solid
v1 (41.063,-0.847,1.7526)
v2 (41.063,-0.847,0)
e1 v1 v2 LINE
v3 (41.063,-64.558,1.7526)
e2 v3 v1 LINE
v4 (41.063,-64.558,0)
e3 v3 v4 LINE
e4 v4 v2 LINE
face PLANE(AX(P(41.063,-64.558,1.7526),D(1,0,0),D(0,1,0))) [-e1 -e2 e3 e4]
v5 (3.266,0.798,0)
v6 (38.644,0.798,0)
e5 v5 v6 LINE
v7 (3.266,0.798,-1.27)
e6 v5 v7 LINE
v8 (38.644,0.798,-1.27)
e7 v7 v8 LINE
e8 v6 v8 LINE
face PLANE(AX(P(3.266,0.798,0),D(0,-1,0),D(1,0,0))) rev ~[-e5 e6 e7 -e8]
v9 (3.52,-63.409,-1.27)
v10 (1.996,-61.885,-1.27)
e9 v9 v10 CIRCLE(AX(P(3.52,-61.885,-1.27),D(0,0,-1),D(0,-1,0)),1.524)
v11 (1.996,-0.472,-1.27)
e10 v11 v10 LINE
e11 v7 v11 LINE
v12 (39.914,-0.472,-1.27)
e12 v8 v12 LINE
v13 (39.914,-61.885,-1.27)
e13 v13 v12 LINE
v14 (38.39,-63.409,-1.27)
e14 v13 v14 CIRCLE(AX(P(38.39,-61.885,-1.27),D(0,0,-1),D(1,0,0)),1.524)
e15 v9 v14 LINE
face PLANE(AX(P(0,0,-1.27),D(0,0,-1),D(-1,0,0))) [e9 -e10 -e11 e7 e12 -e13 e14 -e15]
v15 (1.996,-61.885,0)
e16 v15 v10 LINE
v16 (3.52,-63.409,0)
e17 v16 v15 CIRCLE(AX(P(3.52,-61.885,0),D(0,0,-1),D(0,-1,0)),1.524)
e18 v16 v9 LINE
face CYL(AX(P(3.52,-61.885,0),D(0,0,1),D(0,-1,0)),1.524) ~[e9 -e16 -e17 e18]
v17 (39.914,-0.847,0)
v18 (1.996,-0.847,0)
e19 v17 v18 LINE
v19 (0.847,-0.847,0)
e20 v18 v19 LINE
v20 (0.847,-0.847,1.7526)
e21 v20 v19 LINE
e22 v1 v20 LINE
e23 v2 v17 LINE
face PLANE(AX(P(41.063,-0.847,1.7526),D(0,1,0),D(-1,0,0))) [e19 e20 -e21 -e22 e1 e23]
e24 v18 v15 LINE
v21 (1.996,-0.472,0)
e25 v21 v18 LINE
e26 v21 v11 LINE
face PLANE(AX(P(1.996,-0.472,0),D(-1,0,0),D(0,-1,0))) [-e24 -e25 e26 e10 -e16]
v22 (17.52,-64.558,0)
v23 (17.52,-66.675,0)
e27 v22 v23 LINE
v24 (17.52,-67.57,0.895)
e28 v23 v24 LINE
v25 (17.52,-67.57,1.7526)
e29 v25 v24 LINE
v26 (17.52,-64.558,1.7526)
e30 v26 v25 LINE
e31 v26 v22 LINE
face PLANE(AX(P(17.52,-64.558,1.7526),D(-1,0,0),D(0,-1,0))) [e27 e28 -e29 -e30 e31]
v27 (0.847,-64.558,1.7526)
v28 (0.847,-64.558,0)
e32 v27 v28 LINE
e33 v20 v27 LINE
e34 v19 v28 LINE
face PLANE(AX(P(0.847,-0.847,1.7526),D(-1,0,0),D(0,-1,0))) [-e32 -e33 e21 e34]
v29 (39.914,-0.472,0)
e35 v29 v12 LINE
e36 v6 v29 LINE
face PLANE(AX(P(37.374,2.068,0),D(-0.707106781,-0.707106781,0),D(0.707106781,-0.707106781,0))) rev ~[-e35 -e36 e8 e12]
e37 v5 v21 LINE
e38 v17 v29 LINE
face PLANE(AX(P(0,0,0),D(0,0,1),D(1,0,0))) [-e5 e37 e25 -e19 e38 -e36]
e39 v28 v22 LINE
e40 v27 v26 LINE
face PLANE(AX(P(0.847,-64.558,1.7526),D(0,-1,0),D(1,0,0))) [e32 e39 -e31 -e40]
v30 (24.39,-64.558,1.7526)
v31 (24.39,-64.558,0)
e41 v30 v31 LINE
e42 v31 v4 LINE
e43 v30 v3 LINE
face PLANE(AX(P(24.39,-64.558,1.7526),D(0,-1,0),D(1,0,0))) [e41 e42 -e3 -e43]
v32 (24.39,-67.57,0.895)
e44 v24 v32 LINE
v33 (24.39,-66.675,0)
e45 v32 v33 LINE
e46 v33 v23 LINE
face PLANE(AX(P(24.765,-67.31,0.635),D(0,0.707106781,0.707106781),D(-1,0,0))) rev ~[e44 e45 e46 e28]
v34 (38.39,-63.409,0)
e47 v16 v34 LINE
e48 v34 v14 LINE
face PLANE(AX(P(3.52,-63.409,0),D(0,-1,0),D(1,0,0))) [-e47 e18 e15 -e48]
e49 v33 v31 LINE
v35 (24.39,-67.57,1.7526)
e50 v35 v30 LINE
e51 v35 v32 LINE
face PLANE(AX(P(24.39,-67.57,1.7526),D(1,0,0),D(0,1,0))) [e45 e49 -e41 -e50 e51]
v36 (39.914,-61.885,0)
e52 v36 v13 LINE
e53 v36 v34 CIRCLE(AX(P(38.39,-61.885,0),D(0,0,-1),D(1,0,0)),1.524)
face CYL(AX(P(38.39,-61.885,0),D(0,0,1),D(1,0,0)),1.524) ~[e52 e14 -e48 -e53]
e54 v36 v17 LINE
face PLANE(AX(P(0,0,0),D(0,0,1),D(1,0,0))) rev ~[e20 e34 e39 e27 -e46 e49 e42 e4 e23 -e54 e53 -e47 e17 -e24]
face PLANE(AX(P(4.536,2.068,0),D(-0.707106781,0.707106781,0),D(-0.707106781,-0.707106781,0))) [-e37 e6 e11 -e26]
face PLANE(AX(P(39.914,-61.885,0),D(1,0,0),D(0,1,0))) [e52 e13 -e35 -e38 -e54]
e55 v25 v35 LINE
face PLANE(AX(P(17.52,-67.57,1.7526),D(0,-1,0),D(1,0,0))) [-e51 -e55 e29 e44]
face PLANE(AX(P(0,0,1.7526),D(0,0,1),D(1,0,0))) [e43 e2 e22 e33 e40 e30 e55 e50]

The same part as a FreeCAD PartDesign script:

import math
import FreeCAD as App
import Part
import Sketcher
from FreeCAD import Vector
Q = App.Units.Quantity


def edges_at(feature, points):
    """Names of the edges that pass closest to the given points."""
    edges = feature.Shape.Edges
    near = lambda p: min(range(len(edges)), key=lambda i: edges[i].distToShape(Part.Vertex(*p))[0])
    return sorted({f"Edge{near(p) + 1}" for p in points})


def add_polygon(sketch, points):
    """Adds a closed chain of lines whose ends are joined by coincident constraints."""
    first, n = sketch.GeometryCount, len(points)
    for a, b in zip(points, points[1:] + points[:1]):
        sketch.addGeometry(Part.LineSegment(App.Vector(*a, 0), App.Vector(*b, 0)), False)
    for i in range(n):
        sketch.addConstraint(Sketcher.Constraint("Coincident", first + i, 2, first + (i + 1) % n, 1))

doc = App.newDocument("Part")
body = doc.addObject("PartDesign::Body", "Body")

sketch1 = body.newObject("Sketcher::SketchObject", "Sketch")
sketch1.AttachmentSupport = (doc.getObject("XY_Plane"), [""])
sketch1.MapMode = "FlatFace"
add_polygon(sketch1, [(41.4, -64.9), (41.4, -0.5), (0.5, -0.5), (0.5, -64.9), (17.1, -64.9), (17.1, -67.9), (24.8, -67.9), (24.8, -64.9)])
sketch1.addConstraint(Sketcher.Constraint("Vertical", 0))
sketch1.addConstraint(Sketcher.Constraint("Horizontal", 1))
sketch1.addConstraint(Sketcher.Constraint("Vertical", 2))
sketch1.addConstraint(Sketcher.Constraint("Horizontal", 3))
sketch1.addConstraint(Sketcher.Constraint("Vertical", 4))
sketch1.addConstraint(Sketcher.Constraint("Horizontal", 5))
sketch1.addConstraint(Sketcher.Constraint("Vertical", 6))
sketch1.addConstraint(Sketcher.Constraint("Horizontal", 7))
sketch1.addConstraint(Sketcher.Constraint("Horizontal", 3, 2, 6, 2))
sketch1.addConstraint(Sketcher.Constraint("Equal", 3, 7))
sketch1.addConstraint(Sketcher.Constraint("DistanceX", 5, 1, 5, 2, Q("0.3 in")))
sketch1.addConstraint(Sketcher.Constraint("DistanceX", -1, 1, 3, 2, Q("0.675 in")))
sketch1.addConstraint(Sketcher.Constraint("DistanceY", 4, 2, -1, 1, Q("2.675 in")))
sketch1.addConstraint(Sketcher.Constraint("DistanceX", 1, 2, 1, 1, Q("40.966 mm")))
sketch1.addConstraint(Sketcher.Constraint("DistanceY", 0, 1, 0, 2, Q("64.461 mm")))
sketch1.addConstraint(Sketcher.Constraint("DistanceY", 4, 2, 4, 1, Q("3.012 mm")))
pad1 = body.newObject("PartDesign::Pad", "Pad")
pad1.Profile = sketch1
pad1.Length = Q("0.069 in")

sketch2 = body.newObject("Sketcher::SketchObject", "Sketch001")
sketch2.AttachmentSupport = (doc.getObject("XY_Plane"), [""])
sketch2.MapMode = "FlatFace"
sketch2.addGeometry(Part.LineSegment(Vector(37.4, 2.1, 0), Vector(39.9, -0.5, 0)), False)
sketch2.addGeometry(Part.LineSegment(Vector(39.9, -0.5, 0), Vector(39.9, -61.9, 0)), False)
sketch2.addGeometry(Part.ArcOfCircle(Part.Circle(Vector(38.4, -61.9, 0), Vector(0, 0, 1), 1.5), math.radians(-90), math.radians(0)), False)
sketch2.addGeometry(Part.LineSegment(Vector(38.4, -63.4, 0), Vector(3.5, -63.4, 0)), False)
sketch2.addGeometry(Part.ArcOfCircle(Part.Circle(Vector(3.5, -61.9, 0), Vector(0, 0, 1), 1.5), math.radians(180), math.radians(270)), False)
sketch2.addGeometry(Part.LineSegment(Vector(2, -61.9, 0), Vector(2, -0.5, 0)), False)
sketch2.addGeometry(Part.LineSegment(Vector(2, -0.5, 0), Vector(4.5, 2.1, 0)), False)
sketch2.addGeometry(Part.LineSegment(Vector(4.5, 2.1, 0), Vector(37.4, 2.1, 0)), False)
sketch2.addConstraint(Sketcher.Constraint("Coincident", 0, 2, 1, 1))
sketch2.addConstraint(Sketcher.Constraint("Tangent", 1, 2, 2, 2))
sketch2.addConstraint(Sketcher.Constraint("Tangent", 2, 1, 3, 1))
sketch2.addConstraint(Sketcher.Constraint("Tangent", 3, 2, 4, 2))
sketch2.addConstraint(Sketcher.Constraint("Tangent", 4, 1, 5, 1))
sketch2.addConstraint(Sketcher.Constraint("Coincident", 5, 2, 6, 1))
sketch2.addConstraint(Sketcher.Constraint("Coincident", 6, 2, 7, 1))
sketch2.addConstraint(Sketcher.Constraint("Coincident", 7, 2, 0, 1))
sketch2.addConstraint(Sketcher.Constraint("Vertical", 1))
sketch2.addConstraint(Sketcher.Constraint("Horizontal", 3))
sketch2.addConstraint(Sketcher.Constraint("Vertical", 5))
sketch2.addConstraint(Sketcher.Constraint("Horizontal", 7))
sketch2.addConstraint(Sketcher.Constraint("Equal", 2, 4))
sketch2.addConstraint(Sketcher.Constraint("Perpendicular", 0, 6))
sketch2.addConstraint(Sketcher.Constraint("Horizontal", 0, 2, 5, 2))
sketch2.addConstraint(Sketcher.Constraint("Equal", 0, 6))
sketch2.addConstraint(Sketcher.Constraint("Radius", 2, Q("0.06 in")))
sketch2.addConstraint(Sketcher.Constraint("DistanceX", 5, 2, 6, 2, Q("0.1 in")))
sketch2.addConstraint(Sketcher.Constraint("DistanceX", 3, 2, 3, 1, Q("34.87 mm")))
sketch2.addConstraint(Sketcher.Constraint("DistanceY", 1, 2, 1, 1, Q("61.413 mm")))
sketch2.addConstraint(Sketcher.Constraint("DistanceX", -1, 1, 2, 3, Q("38.39 mm")))
sketch2.addConstraint(Sketcher.Constraint("DistanceY", 2, 3, -1, 1, Q("61.885 mm")))
pad2 = body.newObject("PartDesign::Pad", "Pad001")
pad2.Profile = sketch2
pad2.Length = Q("0.05 in")
pad2.Reversed = True
doc.recompute()

chamfer = body.newObject("PartDesign::Chamfer", "Chamfer")
chamfer.Base = (pad2, edges_at(pad2, [(20.955, -67.945, 0)]))
chamfer.Size = Q("0.05 in")

sketch3 = body.newObject("Sketcher::SketchObject", "Sketch002")
sketch3.AttachmentSupport = (doc.getObject("XY_Plane"), [""])
sketch3.MapMode = "FlatFace"
sketch3.AttachmentOffset = App.Placement(Vector(0, 0, 0.069 * 25.4), App.Rotation())
add_polygon(sketch3, [(41.4, -64.9), (41.4, -0.5), (0.5, -0.5), (0.5, -64.9), (17.1, -64.9), (17.1, -67.9), (24.8, -67.9), (24.8, -64.9)])
add_polygon(sketch3, [(0.8, -0.8), (41.1, -0.8), (41.1, -64.6), (24.4, -64.6), (24.4, -67.6), (17.5, -67.6), (17.5, -64.6), (0.8, -64.6)])
sketch3.addConstraint(Sketcher.Constraint("Vertical", 0))
sketch3.addConstraint(Sketcher.Constraint("Horizontal", 1))
sketch3.addConstraint(Sketcher.Constraint("Vertical", 2))
sketch3.addConstraint(Sketcher.Constraint("Horizontal", 3))
sketch3.addConstraint(Sketcher.Constraint("Vertical", 4))
sketch3.addConstraint(Sketcher.Constraint("Horizontal", 5))
sketch3.addConstraint(Sketcher.Constraint("Vertical", 6))
sketch3.addConstraint(Sketcher.Constraint("Horizontal", 7))
sketch3.addConstraint(Sketcher.Constraint("Horizontal", 8))
sketch3.addConstraint(Sketcher.Constraint("Vertical", 9))
sketch3.addConstraint(Sketcher.Constraint("Horizontal", 10))
sketch3.addConstraint(Sketcher.Constraint("Vertical", 11))
sketch3.addConstraint(Sketcher.Constraint("Horizontal", 12))
sketch3.addConstraint(Sketcher.Constraint("Vertical", 13))
sketch3.addConstraint(Sketcher.Constraint("Horizontal", 14))
sketch3.addConstraint(Sketcher.Constraint("Vertical", 15))
sketch3.addConstraint(Sketcher.Constraint("Horizontal", 3, 2, 6, 2))
sketch3.addConstraint(Sketcher.Constraint("Horizontal", 10, 2, 13, 2))
sketch3.addConstraint(Sketcher.Constraint("Equal", 3, 7))
sketch3.addConstraint(Sketcher.Constraint("Equal", 7, 10))
sketch3.addConstraint(Sketcher.Constraint("Equal", 10, 14))
sketch3.addConstraint(Sketcher.Constraint("Equal", 6, 11))
sketch3.addConstraint(Sketcher.Constraint("DistanceX", 5, 1, 5, 2, Q("0.3 in")))
sketch3.addConstraint(Sketcher.Constraint("DistanceX", 8, 1, 8, 2, Q("1.5833 in")))
sketch3.addConstraint(Sketcher.Constraint("DistanceY", 9, 2, 9, 1, Q("2.5083 in")))
sketch3.addConstraint(Sketcher.Constraint("DistanceX", -1, 1, 3, 2, Q("0.675 in")))
sketch3.addConstraint(Sketcher.Constraint("DistanceY", 4, 2, -1, 1, Q("2.675 in")))
sketch3.addConstraint(Sketcher.Constraint("DistanceX", 1, 2, 1, 1, Q("40.966 mm")))
sketch3.addConstraint(Sketcher.Constraint("DistanceY", 0, 1, 0, 2, Q("64.461 mm")))
sketch3.addConstraint(Sketcher.Constraint("DistanceY", 4, 2, 4, 1, Q("3.012 mm")))
sketch3.addConstraint(Sketcher.Constraint("DistanceX", -1, 1, 8, 2, Q("41.063 mm")))
sketch3.addConstraint(Sketcher.Constraint("DistanceY", 8, 2, -1, 1, Q("0.847 mm")))
pocket1 = body.newObject("PartDesign::Pocket", "Pocket")
pocket1.Profile = sketch3
pocket1.Length = Q("0.069 in")

sketch4 = body.newObject("Sketcher::SketchObject", "Sketch003")
sketch4.AttachmentSupport = (doc.getObject("XY_Plane"), [""])
sketch4.MapMode = "FlatFace"
add_polygon(sketch4, [(38.6, 2.1), (3.3, 2.1), (3.3, 0.8), (38.6, 0.8)])
sketch4.addConstraint(Sketcher.Constraint("Horizontal", 0))
sketch4.addConstraint(Sketcher.Constraint("Vertical", 1))
sketch4.addConstraint(Sketcher.Constraint("Horizontal", 2))
sketch4.addConstraint(Sketcher.Constraint("Vertical", 3))
sketch4.addConstraint(Sketcher.Constraint("DistanceY", 1, 2, 1, 1, Q("0.05 in")))
sketch4.addConstraint(Sketcher.Constraint("DistanceX", 0, 2, 0, 1, Q("35.378 mm")))
sketch4.addConstraint(Sketcher.Constraint("DistanceX", -1, 1, 0, 2, Q("3.266 mm")))
sketch4.addConstraint(Sketcher.Constraint("DistanceY", -1, 1, 0, 2, Q("2.068 mm")))
pocket2 = body.newObject("PartDesign::Pocket", "Pocket001")
pocket2.Profile = sketch4
pocket2.Length = Q("0.05 in")

doc.recompute()
